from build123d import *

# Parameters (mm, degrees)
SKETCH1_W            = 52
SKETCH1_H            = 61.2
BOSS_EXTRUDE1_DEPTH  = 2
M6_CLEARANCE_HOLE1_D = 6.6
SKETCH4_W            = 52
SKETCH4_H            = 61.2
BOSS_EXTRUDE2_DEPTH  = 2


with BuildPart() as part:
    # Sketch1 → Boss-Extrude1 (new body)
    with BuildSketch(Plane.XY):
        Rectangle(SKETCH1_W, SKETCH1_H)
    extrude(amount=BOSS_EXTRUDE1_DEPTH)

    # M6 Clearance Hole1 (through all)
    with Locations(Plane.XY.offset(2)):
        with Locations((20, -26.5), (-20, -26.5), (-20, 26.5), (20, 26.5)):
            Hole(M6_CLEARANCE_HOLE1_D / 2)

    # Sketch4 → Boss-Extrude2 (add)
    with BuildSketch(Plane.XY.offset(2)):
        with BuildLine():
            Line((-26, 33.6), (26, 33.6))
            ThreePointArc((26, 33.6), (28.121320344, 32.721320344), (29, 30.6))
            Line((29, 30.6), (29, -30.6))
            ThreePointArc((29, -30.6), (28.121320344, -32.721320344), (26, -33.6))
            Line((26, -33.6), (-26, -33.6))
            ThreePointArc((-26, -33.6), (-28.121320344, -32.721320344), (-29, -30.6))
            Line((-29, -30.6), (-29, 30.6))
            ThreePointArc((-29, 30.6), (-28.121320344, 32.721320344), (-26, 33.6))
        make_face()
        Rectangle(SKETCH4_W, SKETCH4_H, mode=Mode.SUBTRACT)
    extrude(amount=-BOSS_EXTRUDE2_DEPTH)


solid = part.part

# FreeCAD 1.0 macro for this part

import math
import FreeCAD as App
import Part
import Sketcher

V = App.Vector

doc = App.newDocument("Part")
params = doc.addObject("Spreadsheet::Sheet", "Params")
for row, (alias, value) in enumerate([
    ("sketch1_width", "52 mm"),
    ("sketch1_height", "61.2 mm"),
    ("pad1_length", "2 mm"),
    ("sketch2_diameter", "6.6 mm"),
    ("hole_diameter", "6.6 mm"),
    ("sketch3_radius", "3 mm"),
    ("sketch3_width", "52 mm"),
    ("sketch3_height", "61.2 mm"),
    ("pad2_length", "2 mm"),
], start=1):
    params.set(f"A{row}", alias)
    params.set(f"B{row}", "=" + value)
    params.setAlias(f"B{row}", alias)

body = doc.addObject("PartDesign::Body", "Body")

sketch1 = body.newObject("Sketcher::SketchObject", "Sketch")
sketch1.AttachmentSupport = (doc.getObject("XY_Plane"), [""])
sketch1.MapMode = "FlatFace"
sketch1.addGeometry([
    Part.LineSegment(V(-26, 30.6, 0), V(-26, -30.6, 0)),
    Part.LineSegment(V(-26, -30.6, 0), V(26, -30.6, 0)),
    Part.LineSegment(V(26, -30.6, 0), V(26, 30.6, 0)),
    Part.LineSegment(V(26, 30.6, 0), V(-26, 30.6, 0)),
], False)
sketch1.addConstraint([
    Sketcher.Constraint("Coincident", 0, 2, 1, 1),
    Sketcher.Constraint("Coincident", 1, 2, 2, 1),
    Sketcher.Constraint("Coincident", 2, 2, 3, 1),
    Sketcher.Constraint("Coincident", 3, 2, 0, 1),
    Sketcher.Constraint("Vertical", 0),
    Sketcher.Constraint("Horizontal", 1),
    Sketcher.Constraint("Vertical", 2),
    Sketcher.Constraint("Horizontal", 3),
    Sketcher.Constraint("Symmetric", 0, 2, 2, 2, -1, 1),
    Sketcher.Constraint("DistanceX", 1, 1, 1, 2, 52.0),
    Sketcher.Constraint("DistanceY", 0, 2, 0, 1, 61.2),
])
sketch1.setExpression("Constraints[9]", "Params.sketch1_width")
sketch1.setExpression("Constraints[10]", "Params.sketch1_height")
pad1 = body.newObject("PartDesign::Pad", "Pad")
pad1.Profile = sketch1
pad1.setExpression("Length", "Params.pad1_length")

sketch2 = body.newObject("Sketcher::SketchObject", "Sketch001")
sketch2.AttachmentSupport = (doc.getObject("XY_Plane"), [""])
sketch2.MapMode = "FlatFace"
sketch2.AttachmentOffset = App.Placement(V(0, 0, 2), App.Rotation())
sketch2.addGeometry([
    Part.Circle(V(20, -26.5, 0), V(0, 0, 1), 3.3),
    Part.Circle(V(-20, -26.5, 0), V(0, 0, 1), 3.3),
    Part.Circle(V(-20, 26.5, 0), V(0, 0, 1), 3.3),
    Part.Circle(V(20, 26.5, 0), V(0, 0, 1), 3.3),
], False)
sketch2.addConstraint([
    Sketcher.Constraint("Equal", 0, 1),
    Sketcher.Constraint("Equal", 1, 2),
    Sketcher.Constraint("Equal", 2, 3),
    Sketcher.Constraint("Symmetric", 0, 3, 2, 3, -1, 1),
    Sketcher.Constraint("Symmetric", 1, 3, 3, 3, -1, 1),
    Sketcher.Constraint("Symmetric", 0, 3, 1, 3, -2),
    Sketcher.Constraint("Diameter", 0, 6.6),
    Sketcher.Constraint("DistanceX", -1, 1, 0, 3, 20.0),
    Sketcher.Constraint("DistanceY", 1, 3, 2, 3, 53.0),
])
sketch2.setExpression("Constraints[6]", "Params.sketch2_diameter")
doc.recompute()
hole = body.newObject("PartDesign::Hole", "Hole")
hole.Profile = sketch2
hole.ThreadType = "None"
hole.setExpression("Diameter", "Params.hole_diameter")
hole.DepthType = "ThroughAll"

sketch3 = body.newObject("Sketcher::SketchObject", "Sketch002")
sketch3.AttachmentSupport = (doc.getObject("XY_Plane"), [""])
sketch3.MapMode = "FlatFace"
sketch3.AttachmentOffset = App.Placement(V(0, 0, 2), App.Rotation())
sketch3.addGeometry([
    Part.LineSegment(V(26, 33.6, 0), V(-26, 33.6, 0)),
    Part.ArcOfCircle(Part.Circle(V(-26, 30.6, 0), V(0, 0, 1), 3), math.radians(90), math.radians(180)),
    Part.LineSegment(V(-29, 30.6, 0), V(-29, -30.6, 0)),
    Part.ArcOfCircle(Part.Circle(V(-26, -30.6, 0), V(0, 0, 1), 3), math.radians(180), math.radians(270)),
    Part.LineSegment(V(-26, -33.6, 0), V(26, -33.6, 0)),
    Part.ArcOfCircle(Part.Circle(V(26, -30.6, 0), V(0, 0, 1), 3), math.radians(-90), math.radians(0)),
    Part.LineSegment(V(29, -30.6, 0), V(29, 30.6, 0)),
    Part.ArcOfCircle(Part.Circle(V(26, 30.6, 0), V(0, 0, 1), 3), math.radians(0), math.radians(90)),
    Part.LineSegment(V(-26, -30.6, 0), V(-26, 30.6, 0)),
    Part.LineSegment(V(-26, 30.6, 0), V(26, 30.6, 0)),
    Part.LineSegment(V(26, 30.6, 0), V(26, -30.6, 0)),
    Part.LineSegment(V(26, -30.6, 0), V(-26, -30.6, 0)),
], False)
sketch3.addConstraint([
    Sketcher.Constraint("Tangent", 0, 2, 1, 1),
    Sketcher.Constraint("Tangent", 1, 2, 2, 1),
    Sketcher.Constraint("Tangent", 2, 2, 3, 1),
    Sketcher.Constraint("Tangent", 3, 2, 4, 1),
    Sketcher.Constraint("Tangent", 4, 2, 5, 1),
    Sketcher.Constraint("Tangent", 5, 2, 6, 1),
    Sketcher.Constraint("Tangent", 6, 2, 7, 1),
    Sketcher.Constraint("Tangent", 7, 2, 0, 1),
    Sketcher.Constraint("Coincident", 8, 2, 9, 1),
    Sketcher.Constraint("Coincident", 9, 2, 10, 1),
    Sketcher.Constraint("Coincident", 10, 2, 11, 1),
    Sketcher.Constraint("Coincident", 11, 2, 8, 1),
    Sketcher.Constraint("Horizontal", 0),
    Sketcher.Constraint("Vertical", 2),
    Sketcher.Constraint("Horizontal", 4),
    Sketcher.Constraint("Vertical", 6),
    Sketcher.Constraint("Vertical", 8),
    Sketcher.Constraint("Horizontal", 9),
    Sketcher.Constraint("Vertical", 10),
    Sketcher.Constraint("Horizontal", 11),
    Sketcher.Constraint("Coincident", 8, 2, 1, 3),
    Sketcher.Constraint("Coincident", 9, 2, 7, 3),
    Sketcher.Constraint("Coincident", 10, 2, 5, 3),
    Sketcher.Constraint("Equal", 1, 3),
    Sketcher.Constraint("Symmetric", 1, 3, 5, 3, -1, 1),
    Sketcher.Constraint("Radius", 1, 3.0),
    Sketcher.Constraint("DistanceX", 0, 2, 0, 1, 52.0),
    Sketcher.Constraint("DistanceY", 2, 2, 2, 1, 61.2),
])
sketch3.setExpression("Constraints[25]", "Params.sketch3_radius")
sketch3.setExpression("Constraints[26]", "Params.sketch3_width")
sketch3.setExpression("Constraints[27]", "Params.sketch3_height")
pad2 = body.newObject("PartDesign::Pad", "Pad001")
pad2.Profile = sketch3
pad2.setExpression("Length", "Params.pad2_length")
pad2.Reversed = True

doc.recompute()
